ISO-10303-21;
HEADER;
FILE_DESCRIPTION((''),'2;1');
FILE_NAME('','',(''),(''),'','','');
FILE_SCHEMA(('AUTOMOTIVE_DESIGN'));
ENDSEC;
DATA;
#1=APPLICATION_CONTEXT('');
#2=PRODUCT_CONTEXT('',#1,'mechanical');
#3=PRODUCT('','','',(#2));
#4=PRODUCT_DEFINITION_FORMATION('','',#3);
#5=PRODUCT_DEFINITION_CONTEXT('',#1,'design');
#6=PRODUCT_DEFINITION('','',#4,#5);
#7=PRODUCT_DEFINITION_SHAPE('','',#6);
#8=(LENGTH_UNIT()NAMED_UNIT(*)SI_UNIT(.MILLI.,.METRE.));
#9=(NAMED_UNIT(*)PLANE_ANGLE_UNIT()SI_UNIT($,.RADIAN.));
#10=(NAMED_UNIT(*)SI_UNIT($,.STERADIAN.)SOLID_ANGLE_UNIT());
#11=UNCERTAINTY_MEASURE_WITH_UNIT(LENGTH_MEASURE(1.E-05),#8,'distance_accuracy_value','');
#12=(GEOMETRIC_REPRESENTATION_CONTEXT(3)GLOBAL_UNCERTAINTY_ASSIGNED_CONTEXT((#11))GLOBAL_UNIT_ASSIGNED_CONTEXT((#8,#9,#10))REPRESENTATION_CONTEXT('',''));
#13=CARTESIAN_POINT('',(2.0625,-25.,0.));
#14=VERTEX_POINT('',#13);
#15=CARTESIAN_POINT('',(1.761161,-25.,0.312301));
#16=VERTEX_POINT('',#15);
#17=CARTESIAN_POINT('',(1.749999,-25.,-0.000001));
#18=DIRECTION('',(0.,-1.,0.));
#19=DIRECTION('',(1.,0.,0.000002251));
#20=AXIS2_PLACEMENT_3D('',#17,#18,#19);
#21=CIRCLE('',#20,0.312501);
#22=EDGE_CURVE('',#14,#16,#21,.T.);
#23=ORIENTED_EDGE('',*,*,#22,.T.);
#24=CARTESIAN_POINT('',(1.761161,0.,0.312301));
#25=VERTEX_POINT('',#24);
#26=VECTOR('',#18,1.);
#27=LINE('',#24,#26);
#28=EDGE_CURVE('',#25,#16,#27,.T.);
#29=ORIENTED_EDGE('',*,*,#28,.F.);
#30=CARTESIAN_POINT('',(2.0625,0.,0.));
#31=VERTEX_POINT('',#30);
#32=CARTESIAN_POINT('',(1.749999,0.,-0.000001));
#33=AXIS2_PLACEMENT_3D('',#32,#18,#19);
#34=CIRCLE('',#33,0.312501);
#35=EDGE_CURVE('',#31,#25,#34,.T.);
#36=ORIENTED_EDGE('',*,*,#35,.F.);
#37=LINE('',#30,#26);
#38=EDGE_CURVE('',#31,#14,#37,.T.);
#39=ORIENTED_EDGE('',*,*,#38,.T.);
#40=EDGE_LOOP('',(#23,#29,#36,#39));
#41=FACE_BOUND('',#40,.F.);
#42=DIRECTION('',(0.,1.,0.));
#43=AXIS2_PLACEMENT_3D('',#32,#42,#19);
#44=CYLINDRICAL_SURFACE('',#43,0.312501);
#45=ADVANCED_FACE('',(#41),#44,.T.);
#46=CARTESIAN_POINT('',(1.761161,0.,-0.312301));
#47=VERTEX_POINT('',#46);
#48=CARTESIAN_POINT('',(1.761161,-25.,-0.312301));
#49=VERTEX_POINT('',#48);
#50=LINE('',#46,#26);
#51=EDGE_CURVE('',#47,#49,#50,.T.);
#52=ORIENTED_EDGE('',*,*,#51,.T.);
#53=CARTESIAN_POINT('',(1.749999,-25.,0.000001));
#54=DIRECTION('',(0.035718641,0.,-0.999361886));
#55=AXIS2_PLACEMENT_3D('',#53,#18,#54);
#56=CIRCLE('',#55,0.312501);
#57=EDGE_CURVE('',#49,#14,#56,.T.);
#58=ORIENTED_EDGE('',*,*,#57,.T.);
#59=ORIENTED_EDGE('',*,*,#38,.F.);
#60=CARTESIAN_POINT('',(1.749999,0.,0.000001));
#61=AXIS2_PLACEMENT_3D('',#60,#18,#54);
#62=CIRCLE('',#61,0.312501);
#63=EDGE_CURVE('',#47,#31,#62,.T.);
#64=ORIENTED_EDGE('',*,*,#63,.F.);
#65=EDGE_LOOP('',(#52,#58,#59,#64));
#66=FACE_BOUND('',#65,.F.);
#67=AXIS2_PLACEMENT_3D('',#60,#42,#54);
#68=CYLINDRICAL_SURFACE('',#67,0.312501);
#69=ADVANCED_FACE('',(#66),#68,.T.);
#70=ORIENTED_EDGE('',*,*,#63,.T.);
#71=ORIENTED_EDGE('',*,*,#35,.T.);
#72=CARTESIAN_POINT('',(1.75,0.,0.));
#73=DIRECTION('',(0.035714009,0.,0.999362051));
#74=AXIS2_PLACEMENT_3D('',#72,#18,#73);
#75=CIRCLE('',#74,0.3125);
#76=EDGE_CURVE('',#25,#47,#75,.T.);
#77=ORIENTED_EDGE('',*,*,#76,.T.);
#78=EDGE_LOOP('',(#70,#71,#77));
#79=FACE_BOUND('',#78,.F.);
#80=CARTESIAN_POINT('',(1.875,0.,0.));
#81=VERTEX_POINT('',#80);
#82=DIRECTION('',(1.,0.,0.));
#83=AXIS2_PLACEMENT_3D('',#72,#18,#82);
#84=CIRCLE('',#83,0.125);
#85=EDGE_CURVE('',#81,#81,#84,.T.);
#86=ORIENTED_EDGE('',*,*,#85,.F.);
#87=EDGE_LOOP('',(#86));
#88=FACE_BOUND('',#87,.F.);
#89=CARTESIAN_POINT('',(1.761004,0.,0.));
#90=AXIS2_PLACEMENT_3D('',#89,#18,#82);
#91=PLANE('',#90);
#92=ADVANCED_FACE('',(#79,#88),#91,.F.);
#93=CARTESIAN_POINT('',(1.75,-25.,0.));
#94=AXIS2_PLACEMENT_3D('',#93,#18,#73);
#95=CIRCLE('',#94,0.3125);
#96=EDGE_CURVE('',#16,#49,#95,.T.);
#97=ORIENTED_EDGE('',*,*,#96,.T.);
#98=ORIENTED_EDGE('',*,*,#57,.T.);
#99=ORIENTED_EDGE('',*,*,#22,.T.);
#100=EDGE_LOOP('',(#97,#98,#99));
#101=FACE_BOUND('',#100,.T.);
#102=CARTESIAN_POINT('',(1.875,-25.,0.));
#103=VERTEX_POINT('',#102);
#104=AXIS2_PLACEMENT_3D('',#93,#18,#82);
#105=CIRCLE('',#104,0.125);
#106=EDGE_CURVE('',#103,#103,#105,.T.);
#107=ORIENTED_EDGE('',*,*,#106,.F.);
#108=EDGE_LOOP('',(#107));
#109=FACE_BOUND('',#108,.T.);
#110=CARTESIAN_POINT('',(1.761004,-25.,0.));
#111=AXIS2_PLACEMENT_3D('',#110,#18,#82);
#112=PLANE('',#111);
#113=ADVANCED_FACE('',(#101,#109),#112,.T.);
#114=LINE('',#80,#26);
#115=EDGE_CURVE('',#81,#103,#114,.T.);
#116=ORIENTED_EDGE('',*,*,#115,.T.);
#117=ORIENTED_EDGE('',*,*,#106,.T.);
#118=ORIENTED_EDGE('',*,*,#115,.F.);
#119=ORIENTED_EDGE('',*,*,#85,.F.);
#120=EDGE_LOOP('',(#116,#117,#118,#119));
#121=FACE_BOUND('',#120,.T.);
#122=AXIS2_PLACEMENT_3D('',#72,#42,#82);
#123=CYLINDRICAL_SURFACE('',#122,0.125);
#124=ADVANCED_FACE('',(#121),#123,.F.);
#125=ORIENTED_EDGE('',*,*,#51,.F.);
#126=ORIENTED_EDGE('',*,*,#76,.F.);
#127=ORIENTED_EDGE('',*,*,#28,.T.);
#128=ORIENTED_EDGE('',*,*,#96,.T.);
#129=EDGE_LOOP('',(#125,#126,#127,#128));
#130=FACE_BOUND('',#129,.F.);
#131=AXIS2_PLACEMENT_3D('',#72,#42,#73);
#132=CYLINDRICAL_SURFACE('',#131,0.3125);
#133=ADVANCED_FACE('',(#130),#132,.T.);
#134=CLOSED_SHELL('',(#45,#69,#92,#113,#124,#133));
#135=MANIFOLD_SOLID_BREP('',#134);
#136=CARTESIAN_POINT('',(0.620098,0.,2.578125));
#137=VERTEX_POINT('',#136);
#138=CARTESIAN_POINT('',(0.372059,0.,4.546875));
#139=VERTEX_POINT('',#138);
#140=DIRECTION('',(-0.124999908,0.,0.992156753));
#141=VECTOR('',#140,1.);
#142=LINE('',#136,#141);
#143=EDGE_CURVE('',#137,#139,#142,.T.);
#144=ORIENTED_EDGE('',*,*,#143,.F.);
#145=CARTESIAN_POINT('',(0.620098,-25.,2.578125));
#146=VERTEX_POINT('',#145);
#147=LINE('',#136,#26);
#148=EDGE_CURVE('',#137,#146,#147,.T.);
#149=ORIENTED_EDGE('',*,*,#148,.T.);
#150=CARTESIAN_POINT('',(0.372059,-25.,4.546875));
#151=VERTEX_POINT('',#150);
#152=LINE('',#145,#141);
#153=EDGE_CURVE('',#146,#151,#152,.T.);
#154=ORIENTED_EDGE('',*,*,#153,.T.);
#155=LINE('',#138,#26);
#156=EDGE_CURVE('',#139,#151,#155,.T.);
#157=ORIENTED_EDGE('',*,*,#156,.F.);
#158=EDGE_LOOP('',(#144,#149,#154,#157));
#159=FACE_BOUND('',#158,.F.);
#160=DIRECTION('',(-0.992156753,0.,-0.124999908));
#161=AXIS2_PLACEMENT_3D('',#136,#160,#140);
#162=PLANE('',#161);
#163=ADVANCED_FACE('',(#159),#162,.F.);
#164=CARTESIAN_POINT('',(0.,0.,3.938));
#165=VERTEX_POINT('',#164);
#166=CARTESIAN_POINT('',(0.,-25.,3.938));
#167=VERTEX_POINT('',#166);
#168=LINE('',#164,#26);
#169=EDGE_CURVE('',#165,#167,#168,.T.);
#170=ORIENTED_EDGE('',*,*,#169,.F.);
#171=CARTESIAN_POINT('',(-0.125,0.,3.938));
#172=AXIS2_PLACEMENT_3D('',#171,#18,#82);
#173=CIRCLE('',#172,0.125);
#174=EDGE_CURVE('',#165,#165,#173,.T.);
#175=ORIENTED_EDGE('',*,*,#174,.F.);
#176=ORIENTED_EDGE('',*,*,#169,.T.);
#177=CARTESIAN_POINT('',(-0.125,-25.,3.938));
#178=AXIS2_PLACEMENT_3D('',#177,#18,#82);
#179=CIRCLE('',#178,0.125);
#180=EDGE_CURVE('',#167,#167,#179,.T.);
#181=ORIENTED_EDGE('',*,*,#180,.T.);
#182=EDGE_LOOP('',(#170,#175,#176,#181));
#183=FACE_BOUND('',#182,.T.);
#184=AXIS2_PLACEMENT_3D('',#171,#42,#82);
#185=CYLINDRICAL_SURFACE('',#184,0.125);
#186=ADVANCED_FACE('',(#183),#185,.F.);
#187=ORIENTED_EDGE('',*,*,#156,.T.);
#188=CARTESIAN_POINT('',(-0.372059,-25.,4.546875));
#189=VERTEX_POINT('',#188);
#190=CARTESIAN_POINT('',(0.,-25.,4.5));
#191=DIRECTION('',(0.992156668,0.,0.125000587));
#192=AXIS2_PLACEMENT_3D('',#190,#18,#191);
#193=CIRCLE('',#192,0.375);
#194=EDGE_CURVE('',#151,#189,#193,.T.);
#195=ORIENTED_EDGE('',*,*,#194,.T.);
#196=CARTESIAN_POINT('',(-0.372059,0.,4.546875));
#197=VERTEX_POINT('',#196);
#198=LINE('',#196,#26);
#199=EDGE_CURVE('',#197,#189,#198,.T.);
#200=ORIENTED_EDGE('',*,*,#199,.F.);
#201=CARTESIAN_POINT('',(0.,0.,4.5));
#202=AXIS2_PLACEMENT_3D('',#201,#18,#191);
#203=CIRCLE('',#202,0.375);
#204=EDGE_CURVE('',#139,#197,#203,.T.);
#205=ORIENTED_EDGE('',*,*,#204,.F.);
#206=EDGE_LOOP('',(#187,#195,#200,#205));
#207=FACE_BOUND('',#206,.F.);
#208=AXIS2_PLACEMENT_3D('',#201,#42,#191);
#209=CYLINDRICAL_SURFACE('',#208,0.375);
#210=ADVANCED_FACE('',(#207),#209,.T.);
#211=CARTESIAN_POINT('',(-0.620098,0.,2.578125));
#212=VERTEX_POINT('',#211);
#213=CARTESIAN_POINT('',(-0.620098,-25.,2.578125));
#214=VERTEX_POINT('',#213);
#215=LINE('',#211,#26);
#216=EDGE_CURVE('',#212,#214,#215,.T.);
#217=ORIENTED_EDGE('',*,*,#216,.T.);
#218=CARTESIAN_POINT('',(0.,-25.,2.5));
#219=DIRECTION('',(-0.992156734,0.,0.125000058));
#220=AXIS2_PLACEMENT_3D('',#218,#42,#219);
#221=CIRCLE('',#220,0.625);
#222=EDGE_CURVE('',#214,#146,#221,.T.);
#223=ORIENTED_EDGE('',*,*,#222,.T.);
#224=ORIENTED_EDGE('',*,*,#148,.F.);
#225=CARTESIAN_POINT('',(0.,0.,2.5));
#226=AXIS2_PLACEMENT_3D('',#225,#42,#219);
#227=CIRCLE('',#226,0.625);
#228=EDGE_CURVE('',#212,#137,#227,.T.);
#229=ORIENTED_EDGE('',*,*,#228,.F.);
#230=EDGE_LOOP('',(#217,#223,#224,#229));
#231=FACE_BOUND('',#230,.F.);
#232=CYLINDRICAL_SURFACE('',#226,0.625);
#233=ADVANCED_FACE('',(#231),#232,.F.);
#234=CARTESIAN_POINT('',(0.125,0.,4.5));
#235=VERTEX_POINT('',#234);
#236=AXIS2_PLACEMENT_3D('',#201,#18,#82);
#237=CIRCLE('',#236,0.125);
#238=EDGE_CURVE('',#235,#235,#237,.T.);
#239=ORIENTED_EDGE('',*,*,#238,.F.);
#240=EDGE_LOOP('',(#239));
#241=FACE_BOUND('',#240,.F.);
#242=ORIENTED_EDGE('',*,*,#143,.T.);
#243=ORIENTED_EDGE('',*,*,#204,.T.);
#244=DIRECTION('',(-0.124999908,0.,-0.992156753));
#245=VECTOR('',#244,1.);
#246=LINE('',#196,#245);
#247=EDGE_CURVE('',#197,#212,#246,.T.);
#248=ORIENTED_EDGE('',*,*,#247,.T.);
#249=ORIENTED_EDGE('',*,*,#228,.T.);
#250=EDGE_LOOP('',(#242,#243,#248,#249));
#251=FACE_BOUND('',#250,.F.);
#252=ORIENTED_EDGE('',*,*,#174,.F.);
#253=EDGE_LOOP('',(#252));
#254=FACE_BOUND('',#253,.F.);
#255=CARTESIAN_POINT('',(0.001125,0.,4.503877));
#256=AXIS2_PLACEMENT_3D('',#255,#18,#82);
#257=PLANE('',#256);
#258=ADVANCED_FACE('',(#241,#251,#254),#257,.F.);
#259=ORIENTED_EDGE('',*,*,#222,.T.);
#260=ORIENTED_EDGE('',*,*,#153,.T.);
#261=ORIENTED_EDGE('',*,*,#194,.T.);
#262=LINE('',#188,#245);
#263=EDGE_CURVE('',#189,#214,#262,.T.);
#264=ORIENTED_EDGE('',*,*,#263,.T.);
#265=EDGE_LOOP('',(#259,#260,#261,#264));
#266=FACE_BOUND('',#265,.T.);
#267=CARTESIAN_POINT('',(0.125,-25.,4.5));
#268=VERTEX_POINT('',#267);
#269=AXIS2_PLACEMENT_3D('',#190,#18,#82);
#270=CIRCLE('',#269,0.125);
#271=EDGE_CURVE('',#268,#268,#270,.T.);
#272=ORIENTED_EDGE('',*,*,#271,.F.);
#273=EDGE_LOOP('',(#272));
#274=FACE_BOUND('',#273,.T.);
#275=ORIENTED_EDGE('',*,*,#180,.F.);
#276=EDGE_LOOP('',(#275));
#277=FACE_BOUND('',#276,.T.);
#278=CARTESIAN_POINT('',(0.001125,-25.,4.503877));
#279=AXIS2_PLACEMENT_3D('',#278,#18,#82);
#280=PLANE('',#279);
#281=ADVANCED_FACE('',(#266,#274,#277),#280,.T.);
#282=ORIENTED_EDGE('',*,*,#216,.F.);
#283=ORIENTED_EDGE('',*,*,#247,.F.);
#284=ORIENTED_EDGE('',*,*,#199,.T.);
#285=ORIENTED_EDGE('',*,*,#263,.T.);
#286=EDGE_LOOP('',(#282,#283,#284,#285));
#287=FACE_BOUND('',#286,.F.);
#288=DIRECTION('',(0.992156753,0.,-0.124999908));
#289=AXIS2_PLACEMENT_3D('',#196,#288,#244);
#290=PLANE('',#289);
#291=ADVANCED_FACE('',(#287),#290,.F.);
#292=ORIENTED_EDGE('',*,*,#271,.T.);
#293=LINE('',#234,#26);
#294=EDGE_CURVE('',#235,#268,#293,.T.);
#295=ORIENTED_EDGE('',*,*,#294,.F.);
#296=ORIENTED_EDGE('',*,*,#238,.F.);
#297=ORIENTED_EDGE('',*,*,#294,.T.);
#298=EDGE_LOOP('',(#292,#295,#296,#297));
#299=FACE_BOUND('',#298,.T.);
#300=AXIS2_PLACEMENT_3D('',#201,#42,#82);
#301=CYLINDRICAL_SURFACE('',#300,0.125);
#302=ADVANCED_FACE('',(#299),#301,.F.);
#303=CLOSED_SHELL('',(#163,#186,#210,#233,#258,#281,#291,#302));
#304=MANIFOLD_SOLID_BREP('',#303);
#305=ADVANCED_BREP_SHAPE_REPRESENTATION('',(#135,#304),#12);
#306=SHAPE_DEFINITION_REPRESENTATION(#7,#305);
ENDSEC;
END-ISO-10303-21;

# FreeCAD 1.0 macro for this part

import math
import FreeCAD as App
import Part
import Sketcher
from FreeCAD import Vector
Q = App.Units.Quantity

doc = App.newDocument("Part")
params = doc.addObject("Spreadsheet::Sheet", "Params")
for row, (alias, value) in enumerate([
    ("sketch1_diameter", "0.25 mm"),
    ("pad1_length", "25 mm"),
], start=1):
    params.set(f"A{row}", alias)
    params.set(f"B{row}", "=" + value)
    params.setAlias(f"B{row}", alias)

body = doc.addObject("PartDesign::Body", "Body")
body.AllowCompound = True

sketch1 = doc.addObject("Sketcher::SketchObject", "Sketch")
body.addObject(sketch1)
sketch1.AttachmentSupport = (doc.XZ_Plane, [""])
sketch1.MapMode = "FlatFace"
sketch1.addGeometry([
    Part.ArcOfCircle(Part.Circle(Vector(0, 4.5, 0), Vector(0, 0, 1), 0.38), math.radians(7), math.radians(173)),
    Part.LineSegment(Vector(-0.37, 4.55, 0), Vector(-0.62, 2.58, 0)),
    Part.ArcOfCircle(Part.Circle(Vector(0, 2.5, 0), Vector(0, 0, 1), 0.63), math.radians(7), math.radians(173)),
    Part.LineSegment(Vector(0.62, 2.58, 0), Vector(0.37, 4.55, 0)),
    Part.Circle(Vector(-0.12, 3.94, 0), Vector(0, 0, 1), 0.12),
    Part.Circle(Vector(0, 4.5, 0), Vector(0, 0, 1), 0.12),
    Part.ArcOfCircle(Part.Circle(Vector(1.75, 0, 0), Vector(0, 0, 1), 0.31), math.radians(88), math.radians(272)),
    Part.ArcOfCircle(Part.Circle(Vector(1.75, 0, 0), Vector(0, 0, 1), 0.31), math.radians(-88), math.radians(0)),
    Part.ArcOfCircle(Part.Circle(Vector(1.75, 0, 0), Vector(0, 0, 1), 0.31), math.radians(0), math.radians(88)),
    Part.Circle(Vector(1.75, 0, 0), Vector(0, 0, 1), 0.12),
], False)
sketch1.addConstraint([
    Sketcher.Constraint("Tangent", 0, 2, 1, 1),
    Sketcher.Constraint("Tangent", 1, 2, 2, 2),
    Sketcher.Constraint("Tangent", 2, 1, 3, 1),
    Sketcher.Constraint("Tangent", 3, 2, 0, 1),
    Sketcher.Constraint("Coincident", 6, 2, 7, 1),
    Sketcher.Constraint("Coincident", 7, 2, 8, 1),
    Sketcher.Constraint("Coincident", 8, 2, 6, 1),
    Sketcher.Constraint("Coincident", 5, 3, 0, 3),
    Sketcher.Constraint("Coincident", 7, 3, 6, 3),
    Sketcher.Constraint("Coincident", 9, 3, 6, 3),
    Sketcher.Constraint("Equal", 4, 5),
    Sketcher.Constraint("Equal", 7, 8),
    Sketcher.Constraint("Equal", 5, 9),
    Sketcher.Constraint("Symmetric", 1, 2, 2, 1, -2),
    Sketcher.Constraint("Symmetric", 6, 2, 8, 2, -1),
    Sketcher.Constraint("PointOnObject", 7, 2, -1),
    Sketcher.Constraint("Diameter", 4, Q("0.25 mm")),
    Sketcher.Constraint("Radius", 0, Q("0.375 mm")),
    Sketcher.Constraint("Radius", 2, Q("0.625 mm")),
    Sketcher.Constraint("DistanceY", 2, 3, 0, 3, Q("2 mm")),
    Sketcher.Constraint("DistanceY", -1, 1, 0, 3, Q("4.5 mm")),
    Sketcher.Constraint("Radius", 6, Q("0.3125 mm")),
    Sketcher.Constraint("DistanceX", -1, 1, 6, 3, Q("1.75 mm")),
    Sketcher.Constraint("DistanceX", 4, 3, -1, 1, Q("0.125 mm")),
    Sketcher.Constraint("DistanceY", -1, 1, 4, 3, Q("3.938 mm")),
    Sketcher.Constraint("DistanceY", 6, 2, -1, 1, Q("0.312301 mm")),
])
sketch1.setExpression("Constraints[16]", "Params.sketch1_diameter")
pad1 = doc.addObject("PartDesign::Pad", "Pad")
body.addObject(pad1)
pad1.Profile = sketch1
pad1.setExpression("Length", "Params.pad1_length")

doc.recompute()
